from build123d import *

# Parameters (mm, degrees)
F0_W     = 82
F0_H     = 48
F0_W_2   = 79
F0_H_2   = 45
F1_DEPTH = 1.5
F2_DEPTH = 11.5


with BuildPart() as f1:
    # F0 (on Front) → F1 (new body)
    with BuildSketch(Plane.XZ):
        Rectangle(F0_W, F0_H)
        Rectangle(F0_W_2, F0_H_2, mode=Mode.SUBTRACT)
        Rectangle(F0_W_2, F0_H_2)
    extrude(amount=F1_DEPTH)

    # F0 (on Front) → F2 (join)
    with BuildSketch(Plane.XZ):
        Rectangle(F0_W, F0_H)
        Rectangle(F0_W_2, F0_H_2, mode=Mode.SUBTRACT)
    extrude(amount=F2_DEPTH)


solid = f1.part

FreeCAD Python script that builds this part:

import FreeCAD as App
import Part
import Sketcher

V = App.Vector

doc = App.newDocument("Part")
body = doc.addObject("PartDesign::Body", "Body")

sketch1 = body.newObject("Sketcher::SketchObject", "Sketch")
sketch1.AttachmentSupport = (doc.getObject("XZ_Plane"), [""])
sketch1.MapMode = "FlatFace"
sketch1.addGeometry([
    Part.LineSegment(V(-41, 24, 0), V(-41, -24, 0)),
    Part.LineSegment(V(-41, -24, 0), V(41, -24, 0)),
    Part.LineSegment(V(41, -24, 0), V(41, 24, 0)),
    Part.LineSegment(V(41, 24, 0), V(-41, 24, 0)),
], False)
sketch1.addConstraint([
    Sketcher.Constraint("Coincident", 0, 2, 1, 1),
    Sketcher.Constraint("Coincident", 1, 2, 2, 1),
    Sketcher.Constraint("Coincident", 2, 2, 3, 1),
    Sketcher.Constraint("Coincident", 3, 2, 0, 1),
    Sketcher.Constraint("Vertical", 0),
    Sketcher.Constraint("Horizontal", 1),
    Sketcher.Constraint("Vertical", 2),
    Sketcher.Constraint("Horizontal", 3),
    Sketcher.Constraint("Symmetric", 0, 2, 2, 2, -1, 1),
    Sketcher.Constraint("DistanceX", 1, 1, 1, 2, 82.0),
    Sketcher.Constraint("DistanceY", 0, 2, 0, 1, 48.0),
])
pad1 = body.newObject("PartDesign::Pad", "Pad")
pad1.Profile = sketch1
pad1.Length = 1.5

sketch2 = body.newObject("Sketcher::SketchObject", "Sketch001")
sketch2.AttachmentSupport = (doc.getObject("XZ_Plane"), [""])
sketch2.MapMode = "FlatFace"
sketch2.addGeometry([
    Part.LineSegment(V(-41, 24, 0), V(-41, -24, 0)),
    Part.LineSegment(V(-41, -24, 0), V(41, -24, 0)),
    Part.LineSegment(V(41, -24, 0), V(41, 24, 0)),
    Part.LineSegment(V(41, 24, 0), V(-41, 24, 0)),
    Part.LineSegment(V(40, -22, 0), V(-40, -22, 0)),
    Part.LineSegment(V(-40, -22, 0), V(-40, 22, 0)),
    Part.LineSegment(V(-40, 22, 0), V(40, 22, 0)),
    Part.LineSegment(V(40, 22, 0), V(40, -22, 0)),
], False)
sketch2.addConstraint([
    Sketcher.Constraint("Coincident", 0, 2, 1, 1),
    Sketcher.Constraint("Coincident", 1, 2, 2, 1),
    Sketcher.Constraint("Coincident", 2, 2, 3, 1),
    Sketcher.Constraint("Coincident", 3, 2, 0, 1),
    Sketcher.Constraint("Coincident", 4, 2, 5, 1),
    Sketcher.Constraint("Coincident", 5, 2, 6, 1),
    Sketcher.Constraint("Coincident", 6, 2, 7, 1),
    Sketcher.Constraint("Coincident", 7, 2, 4, 1),
    Sketcher.Constraint("Vertical", 0),
    Sketcher.Constraint("Horizontal", 1),
    Sketcher.Constraint("Vertical", 2),
    Sketcher.Constraint("Horizontal", 3),
    Sketcher.Constraint("Horizontal", 4),
    Sketcher.Constraint("Vertical", 5),
    Sketcher.Constraint("Horizontal", 6),
    Sketcher.Constraint("Vertical", 7),
    Sketcher.Constraint("Symmetric", 0, 2, 2, 2, -1, 1),
    Sketcher.Constraint("Symmetric", 4, 2, 6, 2, -1, 1),
    Sketcher.Constraint("DistanceX", 1, 1, 1, 2, 82.0),
    Sketcher.Constraint("DistanceX", 4, 2, 4, 1, 79.0),
    Sketcher.Constraint("DistanceY", 0, 2, 0, 1, 48.0),
    Sketcher.Constraint("DistanceY", 5, 1, 5, 2, 45.0),
])
pad2 = body.newObject("PartDesign::Pad", "Pad001")
pad2.Profile = sketch2
pad2.Length = 11.5

doc.recompute()
